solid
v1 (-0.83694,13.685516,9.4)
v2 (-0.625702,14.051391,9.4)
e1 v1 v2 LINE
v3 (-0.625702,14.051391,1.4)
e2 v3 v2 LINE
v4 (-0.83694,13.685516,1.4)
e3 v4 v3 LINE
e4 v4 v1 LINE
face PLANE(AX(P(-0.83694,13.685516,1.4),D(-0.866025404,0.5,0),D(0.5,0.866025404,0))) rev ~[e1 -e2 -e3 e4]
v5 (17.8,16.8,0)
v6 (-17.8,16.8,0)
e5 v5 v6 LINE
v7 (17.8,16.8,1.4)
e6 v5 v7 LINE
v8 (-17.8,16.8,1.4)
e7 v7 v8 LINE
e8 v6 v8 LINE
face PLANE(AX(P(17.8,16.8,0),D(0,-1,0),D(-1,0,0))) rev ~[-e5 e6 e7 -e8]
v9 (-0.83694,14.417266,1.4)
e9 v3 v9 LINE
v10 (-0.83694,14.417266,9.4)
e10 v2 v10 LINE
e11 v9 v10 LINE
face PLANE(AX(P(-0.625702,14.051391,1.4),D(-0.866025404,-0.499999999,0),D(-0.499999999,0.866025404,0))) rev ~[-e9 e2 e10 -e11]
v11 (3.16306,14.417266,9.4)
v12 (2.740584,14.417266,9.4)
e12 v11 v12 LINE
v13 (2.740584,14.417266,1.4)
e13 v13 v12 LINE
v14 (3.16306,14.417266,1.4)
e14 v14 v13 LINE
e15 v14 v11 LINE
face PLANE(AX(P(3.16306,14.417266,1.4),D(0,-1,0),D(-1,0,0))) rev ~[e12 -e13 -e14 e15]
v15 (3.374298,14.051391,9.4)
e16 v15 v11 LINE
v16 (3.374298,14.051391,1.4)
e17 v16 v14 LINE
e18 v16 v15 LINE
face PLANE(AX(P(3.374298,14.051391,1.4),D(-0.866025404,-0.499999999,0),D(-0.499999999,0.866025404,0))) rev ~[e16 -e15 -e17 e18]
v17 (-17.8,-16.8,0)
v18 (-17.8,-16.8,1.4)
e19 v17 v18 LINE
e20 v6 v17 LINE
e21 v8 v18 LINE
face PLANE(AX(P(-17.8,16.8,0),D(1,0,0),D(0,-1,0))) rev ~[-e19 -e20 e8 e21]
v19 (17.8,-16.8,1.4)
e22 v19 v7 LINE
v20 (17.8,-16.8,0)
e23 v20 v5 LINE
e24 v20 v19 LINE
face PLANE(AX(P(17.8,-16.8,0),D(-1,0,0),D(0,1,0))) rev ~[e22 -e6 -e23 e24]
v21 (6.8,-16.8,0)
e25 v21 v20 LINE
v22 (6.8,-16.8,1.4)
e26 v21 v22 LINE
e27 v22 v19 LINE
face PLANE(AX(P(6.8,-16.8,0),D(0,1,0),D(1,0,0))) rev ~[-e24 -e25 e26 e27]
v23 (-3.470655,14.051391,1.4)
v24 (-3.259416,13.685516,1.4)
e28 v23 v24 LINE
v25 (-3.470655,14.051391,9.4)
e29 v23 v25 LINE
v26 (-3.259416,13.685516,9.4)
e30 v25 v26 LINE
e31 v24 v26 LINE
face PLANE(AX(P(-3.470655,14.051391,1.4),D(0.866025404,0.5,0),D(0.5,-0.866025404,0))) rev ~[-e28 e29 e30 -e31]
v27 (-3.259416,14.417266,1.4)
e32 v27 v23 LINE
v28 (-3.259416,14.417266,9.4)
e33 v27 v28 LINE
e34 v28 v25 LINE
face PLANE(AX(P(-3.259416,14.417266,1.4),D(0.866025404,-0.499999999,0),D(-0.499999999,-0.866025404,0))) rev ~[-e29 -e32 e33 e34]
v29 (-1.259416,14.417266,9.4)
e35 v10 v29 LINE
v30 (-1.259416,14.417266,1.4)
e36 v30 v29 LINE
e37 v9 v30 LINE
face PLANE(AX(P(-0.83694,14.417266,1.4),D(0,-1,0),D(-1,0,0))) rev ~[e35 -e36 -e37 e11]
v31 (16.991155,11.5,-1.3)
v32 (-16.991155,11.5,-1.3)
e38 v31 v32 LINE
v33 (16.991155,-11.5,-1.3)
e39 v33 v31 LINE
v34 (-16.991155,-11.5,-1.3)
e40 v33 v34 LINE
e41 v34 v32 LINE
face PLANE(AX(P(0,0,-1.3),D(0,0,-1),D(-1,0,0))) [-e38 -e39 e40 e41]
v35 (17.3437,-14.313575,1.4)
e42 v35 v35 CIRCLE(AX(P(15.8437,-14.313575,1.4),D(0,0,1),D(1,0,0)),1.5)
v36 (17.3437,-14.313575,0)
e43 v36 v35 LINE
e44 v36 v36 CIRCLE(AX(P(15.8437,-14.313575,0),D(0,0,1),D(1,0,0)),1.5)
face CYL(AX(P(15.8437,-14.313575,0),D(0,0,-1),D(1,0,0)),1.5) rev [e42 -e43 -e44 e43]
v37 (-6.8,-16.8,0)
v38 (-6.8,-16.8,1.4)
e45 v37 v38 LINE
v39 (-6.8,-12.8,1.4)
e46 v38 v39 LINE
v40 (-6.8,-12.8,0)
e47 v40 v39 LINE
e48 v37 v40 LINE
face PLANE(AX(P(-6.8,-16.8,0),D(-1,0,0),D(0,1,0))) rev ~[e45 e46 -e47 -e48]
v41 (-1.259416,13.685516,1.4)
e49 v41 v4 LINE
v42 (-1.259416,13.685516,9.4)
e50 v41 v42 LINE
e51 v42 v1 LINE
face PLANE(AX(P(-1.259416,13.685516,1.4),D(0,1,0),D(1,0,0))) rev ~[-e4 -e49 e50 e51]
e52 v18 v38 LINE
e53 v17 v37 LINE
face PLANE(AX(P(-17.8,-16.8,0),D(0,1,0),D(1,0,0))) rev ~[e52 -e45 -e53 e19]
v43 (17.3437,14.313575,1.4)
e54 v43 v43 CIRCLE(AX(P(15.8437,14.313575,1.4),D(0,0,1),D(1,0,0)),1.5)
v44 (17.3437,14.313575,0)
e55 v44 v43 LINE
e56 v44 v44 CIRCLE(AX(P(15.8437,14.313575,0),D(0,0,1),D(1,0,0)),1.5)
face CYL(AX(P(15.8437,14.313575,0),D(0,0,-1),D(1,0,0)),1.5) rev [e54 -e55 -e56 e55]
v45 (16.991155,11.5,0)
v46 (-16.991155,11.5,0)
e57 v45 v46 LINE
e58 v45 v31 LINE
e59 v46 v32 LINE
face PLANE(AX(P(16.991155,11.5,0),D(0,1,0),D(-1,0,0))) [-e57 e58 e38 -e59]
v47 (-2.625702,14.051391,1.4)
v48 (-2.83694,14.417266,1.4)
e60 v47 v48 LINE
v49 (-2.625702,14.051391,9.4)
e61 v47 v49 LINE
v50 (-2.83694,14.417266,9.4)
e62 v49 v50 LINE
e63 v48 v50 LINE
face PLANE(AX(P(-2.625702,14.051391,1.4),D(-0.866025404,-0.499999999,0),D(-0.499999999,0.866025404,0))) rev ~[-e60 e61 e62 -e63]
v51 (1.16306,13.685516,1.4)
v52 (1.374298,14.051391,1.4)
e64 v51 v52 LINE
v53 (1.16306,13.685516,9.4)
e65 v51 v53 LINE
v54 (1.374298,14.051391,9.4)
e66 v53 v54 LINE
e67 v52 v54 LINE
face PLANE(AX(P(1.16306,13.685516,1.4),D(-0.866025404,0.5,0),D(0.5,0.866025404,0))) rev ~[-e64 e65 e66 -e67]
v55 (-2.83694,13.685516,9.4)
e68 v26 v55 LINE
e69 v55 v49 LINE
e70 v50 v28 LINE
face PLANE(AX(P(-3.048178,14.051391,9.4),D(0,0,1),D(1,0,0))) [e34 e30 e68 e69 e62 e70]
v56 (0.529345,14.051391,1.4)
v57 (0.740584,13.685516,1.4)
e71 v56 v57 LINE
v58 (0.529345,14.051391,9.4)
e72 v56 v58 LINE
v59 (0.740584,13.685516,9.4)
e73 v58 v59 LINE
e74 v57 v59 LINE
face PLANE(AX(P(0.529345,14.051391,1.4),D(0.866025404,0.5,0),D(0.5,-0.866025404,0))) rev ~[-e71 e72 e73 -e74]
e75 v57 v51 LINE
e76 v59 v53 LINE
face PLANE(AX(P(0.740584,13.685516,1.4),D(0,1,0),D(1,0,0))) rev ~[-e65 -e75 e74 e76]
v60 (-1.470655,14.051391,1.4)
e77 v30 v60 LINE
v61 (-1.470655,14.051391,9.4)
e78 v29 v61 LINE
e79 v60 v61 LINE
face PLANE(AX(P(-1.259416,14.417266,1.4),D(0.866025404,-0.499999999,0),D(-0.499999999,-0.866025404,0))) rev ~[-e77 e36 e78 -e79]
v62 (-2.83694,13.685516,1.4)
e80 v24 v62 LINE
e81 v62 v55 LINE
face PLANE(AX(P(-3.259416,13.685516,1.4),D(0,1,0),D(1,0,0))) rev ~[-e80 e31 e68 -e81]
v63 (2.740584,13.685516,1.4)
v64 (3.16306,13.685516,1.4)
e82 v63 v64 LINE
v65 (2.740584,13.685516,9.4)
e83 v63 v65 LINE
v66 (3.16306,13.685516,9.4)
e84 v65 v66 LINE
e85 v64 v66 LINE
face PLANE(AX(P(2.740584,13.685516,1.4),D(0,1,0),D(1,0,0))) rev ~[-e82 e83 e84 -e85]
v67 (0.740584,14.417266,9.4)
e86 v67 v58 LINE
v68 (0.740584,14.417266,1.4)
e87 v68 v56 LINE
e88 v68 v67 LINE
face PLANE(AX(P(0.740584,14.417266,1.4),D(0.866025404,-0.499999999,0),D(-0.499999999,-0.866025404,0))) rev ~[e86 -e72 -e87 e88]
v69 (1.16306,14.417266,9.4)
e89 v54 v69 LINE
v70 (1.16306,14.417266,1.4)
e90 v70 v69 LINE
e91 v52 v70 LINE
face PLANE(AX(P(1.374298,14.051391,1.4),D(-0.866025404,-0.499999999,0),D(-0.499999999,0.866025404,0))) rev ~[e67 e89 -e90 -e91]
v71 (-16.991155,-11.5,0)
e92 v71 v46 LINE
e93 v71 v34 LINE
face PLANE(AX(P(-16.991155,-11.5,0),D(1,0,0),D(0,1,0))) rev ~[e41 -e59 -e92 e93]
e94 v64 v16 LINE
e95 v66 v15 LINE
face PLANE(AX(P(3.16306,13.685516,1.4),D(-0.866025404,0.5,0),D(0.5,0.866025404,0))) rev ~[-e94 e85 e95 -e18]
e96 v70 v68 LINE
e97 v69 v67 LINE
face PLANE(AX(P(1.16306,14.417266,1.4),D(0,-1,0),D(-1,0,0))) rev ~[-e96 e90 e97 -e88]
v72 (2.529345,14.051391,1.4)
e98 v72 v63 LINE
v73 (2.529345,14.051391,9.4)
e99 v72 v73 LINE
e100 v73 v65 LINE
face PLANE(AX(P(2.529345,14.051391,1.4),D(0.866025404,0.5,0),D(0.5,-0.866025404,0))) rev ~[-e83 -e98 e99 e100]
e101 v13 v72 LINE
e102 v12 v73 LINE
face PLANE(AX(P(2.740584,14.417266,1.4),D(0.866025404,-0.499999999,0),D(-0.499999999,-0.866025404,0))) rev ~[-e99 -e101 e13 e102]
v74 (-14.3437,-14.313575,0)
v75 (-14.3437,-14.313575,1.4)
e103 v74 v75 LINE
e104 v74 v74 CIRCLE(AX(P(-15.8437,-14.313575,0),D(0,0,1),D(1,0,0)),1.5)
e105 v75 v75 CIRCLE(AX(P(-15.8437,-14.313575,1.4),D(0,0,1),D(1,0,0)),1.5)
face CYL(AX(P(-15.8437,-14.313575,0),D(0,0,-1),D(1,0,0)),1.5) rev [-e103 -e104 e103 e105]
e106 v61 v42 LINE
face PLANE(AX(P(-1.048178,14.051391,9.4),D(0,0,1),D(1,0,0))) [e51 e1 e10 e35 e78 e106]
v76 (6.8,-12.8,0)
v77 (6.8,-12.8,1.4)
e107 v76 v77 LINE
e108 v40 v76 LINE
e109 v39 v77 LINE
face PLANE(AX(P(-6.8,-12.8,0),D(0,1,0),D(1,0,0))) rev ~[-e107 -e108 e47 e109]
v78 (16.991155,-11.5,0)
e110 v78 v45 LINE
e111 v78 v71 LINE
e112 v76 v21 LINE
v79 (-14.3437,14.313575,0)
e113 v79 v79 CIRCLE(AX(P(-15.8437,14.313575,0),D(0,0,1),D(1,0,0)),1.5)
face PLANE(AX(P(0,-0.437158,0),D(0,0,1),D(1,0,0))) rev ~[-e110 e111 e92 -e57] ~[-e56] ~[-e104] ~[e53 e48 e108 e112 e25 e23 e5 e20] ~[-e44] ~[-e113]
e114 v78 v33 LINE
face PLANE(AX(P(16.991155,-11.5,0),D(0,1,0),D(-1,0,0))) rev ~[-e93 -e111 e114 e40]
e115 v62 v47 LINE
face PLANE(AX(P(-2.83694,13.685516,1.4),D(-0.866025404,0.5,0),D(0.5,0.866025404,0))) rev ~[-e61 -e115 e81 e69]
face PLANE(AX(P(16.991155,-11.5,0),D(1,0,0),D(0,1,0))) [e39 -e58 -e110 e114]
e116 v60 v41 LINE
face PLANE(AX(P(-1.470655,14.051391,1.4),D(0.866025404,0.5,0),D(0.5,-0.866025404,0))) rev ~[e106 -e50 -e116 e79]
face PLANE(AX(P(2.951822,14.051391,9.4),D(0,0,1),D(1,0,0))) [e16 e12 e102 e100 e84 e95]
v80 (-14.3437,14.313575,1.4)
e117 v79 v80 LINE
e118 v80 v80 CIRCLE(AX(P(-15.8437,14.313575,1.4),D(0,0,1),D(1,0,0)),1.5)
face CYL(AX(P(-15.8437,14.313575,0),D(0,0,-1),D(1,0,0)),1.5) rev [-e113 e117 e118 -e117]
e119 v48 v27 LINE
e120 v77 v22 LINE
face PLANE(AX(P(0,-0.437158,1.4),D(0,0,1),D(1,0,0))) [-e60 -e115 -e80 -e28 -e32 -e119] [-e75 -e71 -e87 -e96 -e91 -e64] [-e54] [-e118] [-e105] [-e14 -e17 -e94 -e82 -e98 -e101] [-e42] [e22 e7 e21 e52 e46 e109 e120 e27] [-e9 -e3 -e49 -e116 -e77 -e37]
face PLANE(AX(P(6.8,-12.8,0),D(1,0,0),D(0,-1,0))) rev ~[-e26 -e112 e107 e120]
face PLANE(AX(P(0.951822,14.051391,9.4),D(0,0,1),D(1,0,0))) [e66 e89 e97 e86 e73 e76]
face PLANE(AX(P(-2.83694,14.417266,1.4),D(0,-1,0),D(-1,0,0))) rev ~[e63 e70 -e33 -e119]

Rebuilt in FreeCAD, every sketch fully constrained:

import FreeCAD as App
import Part
import Sketcher
Q = App.Units.Quantity

doc = App.newDocument("Part")
params = doc.addObject("Spreadsheet::Sheet", "Params")
for row, (alias, value) in enumerate([
    ("sketch1_diameter", "3 mm"),
    ("sketch1_width", "11 mm"),
    ("sketch1_height", "4 mm"),
    ("sketch1_width2", "35.6 mm"),
    ("sketch1_height2", "33.6 mm"),
    ("pad1_length", "1.4 mm"),
    ("sketch2_height", "23 mm"),
    ("pad2_length", "1.3 mm"),
    ("pad3_length", "8 mm"),
], start=1):
    params.set(f"A{row}", alias)
    params.set(f"B{row}", "=" + value)
    params.setAlias(f"B{row}", alias)

body = doc.addObject("PartDesign::Body", "Body")

sketch1 = body.newObject("Sketcher::SketchObject", "Sketch")
sketch1.AttachmentSupport = (doc.getObject("XY_Plane"), [""])
sketch1.MapMode = "FlatFace"
sketch1.addGeometry(Part.LineSegment(App.Vector(17.8, 16.8, 0), App.Vector(-17.8, 16.8, 0)), False)
sketch1.addGeometry(Part.LineSegment(App.Vector(-17.8, 16.8, 0), App.Vector(-17.8, -16.8, 0)), False)
sketch1.addGeometry(Part.LineSegment(App.Vector(-17.8, -16.8, 0), App.Vector(-6.8, -16.8, 0)), False)
sketch1.addGeometry(Part.LineSegment(App.Vector(-6.8, -16.8, 0), App.Vector(-6.8, -12.8, 0)), False)
sketch1.addGeometry(Part.LineSegment(App.Vector(-6.8, -12.8, 0), App.Vector(6.8, -12.8, 0)), False)
sketch1.addGeometry(Part.LineSegment(App.Vector(6.8, -12.8, 0), App.Vector(6.8, -16.8, 0)), False)
sketch1.addGeometry(Part.LineSegment(App.Vector(6.8, -16.8, 0), App.Vector(17.8, -16.8, 0)), False)
sketch1.addGeometry(Part.LineSegment(App.Vector(17.8, -16.8, 0), App.Vector(17.8, 16.8, 0)), False)
sketch1.addGeometry(Part.Circle(App.Vector(-15.8, -14.3, 0), App.Vector(0, 0, 1), 1.5), False)
sketch1.addGeometry(Part.Circle(App.Vector(15.8, -14.3, 0), App.Vector(0, 0, 1), 1.5), False)
sketch1.addGeometry(Part.Circle(App.Vector(-15.8, 14.3, 0), App.Vector(0, 0, 1), 1.5), False)
sketch1.addGeometry(Part.Circle(App.Vector(15.8, 14.3, 0), App.Vector(0, 0, 1), 1.5), False)
sketch1.addConstraint(Sketcher.Constraint("Coincident", 0, 2, 1, 1))
sketch1.addConstraint(Sketcher.Constraint("Coincident", 1, 2, 2, 1))
sketch1.addConstraint(Sketcher.Constraint("Coincident", 2, 2, 3, 1))
sketch1.addConstraint(Sketcher.Constraint("Coincident", 3, 2, 4, 1))
sketch1.addConstraint(Sketcher.Constraint("Coincident", 4, 2, 5, 1))
sketch1.addConstraint(Sketcher.Constraint("Coincident", 5, 2, 6, 1))
sketch1.addConstraint(Sketcher.Constraint("Coincident", 6, 2, 7, 1))
sketch1.addConstraint(Sketcher.Constraint("Coincident", 7, 2, 0, 1))
sketch1.addConstraint(Sketcher.Constraint("Horizontal", 0))
sketch1.addConstraint(Sketcher.Constraint("Vertical", 1))
sketch1.addConstraint(Sketcher.Constraint("Horizontal", 2))
sketch1.addConstraint(Sketcher.Constraint("Vertical", 3))
sketch1.addConstraint(Sketcher.Constraint("Horizontal", 4))
sketch1.addConstraint(Sketcher.Constraint("Vertical", 5))
sketch1.addConstraint(Sketcher.Constraint("Horizontal", 6))
sketch1.addConstraint(Sketcher.Constraint("Vertical", 7))
sketch1.addConstraint(Sketcher.Constraint("Equal", 8, 9))
sketch1.addConstraint(Sketcher.Constraint("Equal", 9, 10))
sketch1.addConstraint(Sketcher.Constraint("Equal", 10, 11))
sketch1.addConstraint(Sketcher.Constraint("Symmetric", 9, 3, 10, 3, -1, 1))
sketch1.addConstraint(Sketcher.Constraint("Symmetric", 8, 3, 11, 3, -1, 1))
sketch1.addConstraint(Sketcher.Constraint("Symmetric", 0, 2, 6, 2, -1, 1))
sketch1.addConstraint(Sketcher.Constraint("Symmetric", 8, 3, 9, 3, -2))
sketch1.addConstraint(Sketcher.Constraint("Symmetric", 2, 2, 5, 2, -2))
sketch1.addConstraint(Sketcher.Constraint("Diameter", 8, Q("3 mm")))
sketch1.addConstraint(Sketcher.Constraint("DistanceX", 2, 1, 2, 2, Q("11 mm")))
sketch1.addConstraint(Sketcher.Constraint("DistanceY", 3, 1, 3, 2, Q("4 mm")))
sketch1.addConstraint(Sketcher.Constraint("DistanceX", 0, 2, 0, 1, Q("35.6 mm")))
sketch1.addConstraint(Sketcher.Constraint("DistanceY", 1, 2, 1, 1, Q("33.6 mm")))
sketch1.addConstraint(Sketcher.Constraint("DistanceX", 8, 3, -1, 1, Q("15.8437 mm")))
sketch1.addConstraint(Sketcher.Constraint("DistanceY", 8, 3, 10, 3, Q("28.62715 mm")))
sketch1.setExpression("Constraints[24]", "Params.sketch1_diameter")
sketch1.setExpression("Constraints[25]", "Params.sketch1_width")
sketch1.setExpression("Constraints[26]", "Params.sketch1_height")
sketch1.setExpression("Constraints[27]", "Params.sketch1_width2")
sketch1.setExpression("Constraints[28]", "Params.sketch1_height2")
pad1 = body.newObject("PartDesign::Pad", "Pad")
pad1.Profile = sketch1
pad1.setExpression("Length", "Params.pad1_length")

sketch2 = body.newObject("Sketcher::SketchObject", "Sketch001")
sketch2.AttachmentSupport = (doc.getObject("XY_Plane"), [""])
sketch2.MapMode = "FlatFace"
sketch2.addGeometry(Part.LineSegment(App.Vector(17, 12, 0), App.Vector(17, -12, 0)), False)
sketch2.addGeometry(Part.LineSegment(App.Vector(17, -12, 0), App.Vector(-17, -12, 0)), False)
sketch2.addGeometry(Part.LineSegment(App.Vector(-17, -12, 0), App.Vector(-17, 12, 0)), False)
sketch2.addGeometry(Part.LineSegment(App.Vector(-17, 12, 0), App.Vector(17, 12, 0)), False)
sketch2.addConstraint(Sketcher.Constraint("Coincident", 0, 2, 1, 1))
sketch2.addConstraint(Sketcher.Constraint("Coincident", 1, 2, 2, 1))
sketch2.addConstraint(Sketcher.Constraint("Coincident", 2, 2, 3, 1))
sketch2.addConstraint(Sketcher.Constraint("Coincident", 3, 2, 0, 1))
sketch2.addConstraint(Sketcher.Constraint("Vertical", 0))
sketch2.addConstraint(Sketcher.Constraint("Horizontal", 1))
sketch2.addConstraint(Sketcher.Constraint("Vertical", 2))
sketch2.addConstraint(Sketcher.Constraint("Horizontal", 3))
sketch2.addConstraint(Sketcher.Constraint("Symmetric", 0, 2, 2, 2, -1, 1))
sketch2.addConstraint(Sketcher.Constraint("DistanceY", 0, 2, 0, 1, Q("23 mm")))
sketch2.addConstraint(Sketcher.Constraint("DistanceX", 1, 2, 1, 1, Q("33.982309 mm")))
sketch2.setExpression("Constraints[9]", "Params.sketch2_height")
pad2 = body.newObject("PartDesign::Pad", "Pad001")
pad2.Profile = sketch2
pad2.setExpression("Length", "Params.pad2_length")
pad2.Reversed = True

sketch3 = body.newObject("Sketcher::SketchObject", "Sketch002")
sketch3.AttachmentSupport = (doc.getObject("XY_Plane"), [""])
sketch3.MapMode = "FlatFace"
sketch3.AttachmentOffset = App.Placement(App.Vector(0, 0, 1.4), App.Rotation())
sketch3.addGeometry(Part.LineSegment(App.Vector(-0.63, 14.05, 0), App.Vector(-0.84, 14.42, 0)), False)
sketch3.addGeometry(Part.LineSegment(App.Vector(-0.84, 14.42, 0), App.Vector(-1.26, 14.42, 0)), False)
sketch3.addGeometry(Part.LineSegment(App.Vector(-1.26, 14.42, 0), App.Vector(-1.47, 14.05, 0)), False)
sketch3.addGeometry(Part.LineSegment(App.Vector(-1.47, 14.05, 0), App.Vector(-1.26, 13.69, 0)), False)
sketch3.addGeometry(Part.LineSegment(App.Vector(-1.26, 13.69, 0), App.Vector(-0.84, 13.69, 0)), False)
sketch3.addGeometry(Part.LineSegment(App.Vector(-0.84, 13.69, 0), App.Vector(-0.63, 14.05, 0)), False)
sketch3.addGeometry(Part.LineSegment(App.Vector(-2.63, 14.05, 0), App.Vector(-2.84, 14.42, 0)), False)
sketch3.addGeometry(Part.LineSegment(App.Vector(-2.84, 14.42, 0), App.Vector(-3.26, 14.42, 0)), False)
sketch3.addGeometry(Part.LineSegment(App.Vector(-3.26, 14.42, 0), App.Vector(-3.47, 14.05, 0)), False)
sketch3.addGeometry(Part.LineSegment(App.Vector(-3.47, 14.05, 0), App.Vector(-3.26, 13.69, 0)), False)
sketch3.addGeometry(Part.LineSegment(App.Vector(-3.26, 13.69, 0), App.Vector(-2.84, 13.69, 0)), False)
sketch3.addGeometry(Part.LineSegment(App.Vector(-2.84, 13.69, 0), App.Vector(-2.63, 14.05, 0)), False)
sketch3.addGeometry(Part.LineSegment(App.Vector(1.37, 14.05, 0), App.Vector(1.16, 14.42, 0)), False)
sketch3.addGeometry(Part.LineSegment(App.Vector(1.16, 14.42, 0), App.Vector(0.74, 14.42, 0)), False)
sketch3.addGeometry(Part.LineSegment(App.Vector(0.74, 14.42, 0), App.Vector(0.53, 14.05, 0)), False)
sketch3.addGeometry(Part.LineSegment(App.Vector(0.53, 14.05, 0), App.Vector(0.74, 13.69, 0)), False)
sketch3.addGeometry(Part.LineSegment(App.Vector(0.74, 13.69, 0), App.Vector(1.16, 13.69, 0)), False)
sketch3.addGeometry(Part.LineSegment(App.Vector(1.16, 13.69, 0), App.Vector(1.37, 14.05, 0)), False)
sketch3.addGeometry(Part.LineSegment(App.Vector(3.37, 14.05, 0), App.Vector(3.16, 14.42, 0)), False)
sketch3.addGeometry(Part.LineSegment(App.Vector(3.16, 14.42, 0), App.Vector(2.74, 14.42, 0)), False)
sketch3.addGeometry(Part.LineSegment(App.Vector(2.74, 14.42, 0), App.Vector(2.53, 14.05, 0)), False)
sketch3.addGeometry(Part.LineSegment(App.Vector(2.53, 14.05, 0), App.Vector(2.74, 13.69, 0)), False)
sketch3.addGeometry(Part.LineSegment(App.Vector(2.74, 13.69, 0), App.Vector(3.16, 13.69, 0)), False)
sketch3.addGeometry(Part.LineSegment(App.Vector(3.16, 13.69, 0), App.Vector(3.37, 14.05, 0)), False)
sketch3.addConstraint(Sketcher.Constraint("Coincident", 0, 2, 1, 1))
sketch3.addConstraint(Sketcher.Constraint("Coincident", 1, 2, 2, 1))
sketch3.addConstraint(Sketcher.Constraint("Coincident", 2, 2, 3, 1))
sketch3.addConstraint(Sketcher.Constraint("Coincident", 3, 2, 4, 1))
sketch3.addConstraint(Sketcher.Constraint("Coincident", 4, 2, 5, 1))
sketch3.addConstraint(Sketcher.Constraint("Coincident", 5, 2, 0, 1))
sketch3.addConstraint(Sketcher.Constraint("Coincident", 6, 2, 7, 1))
sketch3.addConstraint(Sketcher.Constraint("Coincident", 7, 2, 8, 1))
sketch3.addConstraint(Sketcher.Constraint("Coincident", 8, 2, 9, 1))
sketch3.addConstraint(Sketcher.Constraint("Coincident", 9, 2, 10, 1))
sketch3.addConstraint(Sketcher.Constraint("Coincident", 10, 2, 11, 1))
sketch3.addConstraint(Sketcher.Constraint("Coincident", 11, 2, 6, 1))
sketch3.addConstraint(Sketcher.Constraint("Coincident", 12, 2, 13, 1))
sketch3.addConstraint(Sketcher.Constraint("Coincident", 13, 2, 14, 1))
sketch3.addConstraint(Sketcher.Constraint("Coincident", 14, 2, 15, 1))
sketch3.addConstraint(Sketcher.Constraint("Coincident", 15, 2, 16, 1))
sketch3.addConstraint(Sketcher.Constraint("Coincident", 16, 2, 17, 1))
sketch3.addConstraint(Sketcher.Constraint("Coincident", 17, 2, 12, 1))
sketch3.addConstraint(Sketcher.Constraint("Coincident", 18, 2, 19, 1))
sketch3.addConstraint(Sketcher.Constraint("Coincident", 19, 2, 20, 1))
sketch3.addConstraint(Sketcher.Constraint("Coincident", 20, 2, 21, 1))
sketch3.addConstraint(Sketcher.Constraint("Coincident", 21, 2, 22, 1))
sketch3.addConstraint(Sketcher.Constraint("Coincident", 22, 2, 23, 1))
sketch3.addConstraint(Sketcher.Constraint("Coincident", 23, 2, 18, 1))
sketch3.addConstraint(Sketcher.Constraint("Horizontal", 1))
sketch3.addConstraint(Sketcher.Constraint("Horizontal", 4))
sketch3.addConstraint(Sketcher.Constraint("Horizontal", 7))
sketch3.addConstraint(Sketcher.Constraint("Horizontal", 10))
sketch3.addConstraint(Sketcher.Constraint("Horizontal", 13))
sketch3.addConstraint(Sketcher.Constraint("Horizontal", 16))
sketch3.addConstraint(Sketcher.Constraint("Horizontal", 19))
sketch3.addConstraint(Sketcher.Constraint("Horizontal", 22))
sketch3.addConstraint(Sketcher.Constraint("Parallel", 0, 3))
sketch3.addConstraint(Sketcher.Constraint("Parallel", 2, 5))
sketch3.addConstraint(Sketcher.Constraint("Parallel", 3, 6))
sketch3.addConstraint(Sketcher.Constraint("Parallel", 5, 8))
sketch3.addConstraint(Sketcher.Constraint("Parallel", 6, 9))
sketch3.addConstraint(Sketcher.Constraint("Parallel", 8, 11))
sketch3.addConstraint(Sketcher.Constraint("Parallel", 9, 12))
sketch3.addConstraint(Sketcher.Constraint("Parallel", 11, 14))
sketch3.addConstraint(Sketcher.Constraint("Parallel", 12, 15))
sketch3.addConstraint(Sketcher.Constraint("Parallel", 14, 17))
sketch3.addConstraint(Sketcher.Constraint("Parallel", 15, 18))
sketch3.addConstraint(Sketcher.Constraint("Parallel", 17, 20))
sketch3.addConstraint(Sketcher.Constraint("Parallel", 18, 21))
sketch3.addConstraint(Sketcher.Constraint("Parallel", 20, 23))
sketch3.addConstraint(Sketcher.Constraint("Horizontal", 2, 2, 5, 2))
sketch3.addConstraint(Sketcher.Constraint("Horizontal", 1, 2, 6, 2))
sketch3.addConstraint(Sketcher.Constraint("Horizontal", 5, 2, 8, 2))
sketch3.addConstraint(Sketcher.Constraint("Horizontal", 4, 2, 9, 2))
sketch3.addConstraint(Sketcher.Constraint("Horizontal", 8, 2, 11, 2))
sketch3.addConstraint(Sketcher.Constraint("Horizontal", 7, 2, 12, 2))
sketch3.addConstraint(Sketcher.Constraint("Horizontal", 11, 2, 14, 2))
sketch3.addConstraint(Sketcher.Constraint("Horizontal", 10, 2, 15, 2))
sketch3.addConstraint(Sketcher.Constraint("Horizontal", 14, 2, 17, 2))
sketch3.addConstraint(Sketcher.Constraint("Horizontal", 13, 2, 18, 2))
sketch3.addConstraint(Sketcher.Constraint("Horizontal", 17, 2, 20, 2))
sketch3.addConstraint(Sketcher.Constraint("Horizontal", 16, 2, 21, 2))
sketch3.addConstraint(Sketcher.Constraint("Horizontal", 20, 2, 23, 2))
sketch3.addConstraint(Sketcher.Constraint("Vertical", 1, 2, 3, 2))
sketch3.addConstraint(Sketcher.Constraint("Vertical", 0, 2, 4, 2))
sketch3.addConstraint(Sketcher.Constraint("Equal", 4, 7))
sketch3.addConstraint(Sketcher.Constraint("Equal", 10, 13))
sketch3.addConstraint(Sketcher.Constraint("Equal", 16, 19))
sketch3.addConstraint(Sketcher.Constraint("Angle", 0, Q("120 deg")))
sketch3.addConstraint(Sketcher.Constraint("DistanceX", 6, 2, 0, 2, Q("2 mm")))
sketch3.addConstraint(Sketcher.Constraint("DistanceX", 0, 2, 12, 2, Q("2 mm")))
sketch3.addConstraint(Sketcher.Constraint("DistanceX", 12, 2, 18, 2, Q("2 mm")))
sketch3.addConstraint(Sketcher.Constraint("DistanceX", 5, 2, -1, 1, Q("0.625702 mm")))
sketch3.addConstraint(Sketcher.Constraint("DistanceX", 1, 2, 1, 1, Q("0.422476 mm")))
sketch3.addConstraint(Sketcher.Constraint("DistanceX", 0, 2, -1, 1, Q("0.83694 mm")))
sketch3.addConstraint(Sketcher.Constraint("DistanceY", -1, 1, 2, 2, Q("14.051391 mm")))
pad3 = body.newObject("PartDesign::Pad", "Pad002")
pad3.Profile = sketch3
pad3.setExpression("Length", "Params.pad3_length")

doc.recompute()
